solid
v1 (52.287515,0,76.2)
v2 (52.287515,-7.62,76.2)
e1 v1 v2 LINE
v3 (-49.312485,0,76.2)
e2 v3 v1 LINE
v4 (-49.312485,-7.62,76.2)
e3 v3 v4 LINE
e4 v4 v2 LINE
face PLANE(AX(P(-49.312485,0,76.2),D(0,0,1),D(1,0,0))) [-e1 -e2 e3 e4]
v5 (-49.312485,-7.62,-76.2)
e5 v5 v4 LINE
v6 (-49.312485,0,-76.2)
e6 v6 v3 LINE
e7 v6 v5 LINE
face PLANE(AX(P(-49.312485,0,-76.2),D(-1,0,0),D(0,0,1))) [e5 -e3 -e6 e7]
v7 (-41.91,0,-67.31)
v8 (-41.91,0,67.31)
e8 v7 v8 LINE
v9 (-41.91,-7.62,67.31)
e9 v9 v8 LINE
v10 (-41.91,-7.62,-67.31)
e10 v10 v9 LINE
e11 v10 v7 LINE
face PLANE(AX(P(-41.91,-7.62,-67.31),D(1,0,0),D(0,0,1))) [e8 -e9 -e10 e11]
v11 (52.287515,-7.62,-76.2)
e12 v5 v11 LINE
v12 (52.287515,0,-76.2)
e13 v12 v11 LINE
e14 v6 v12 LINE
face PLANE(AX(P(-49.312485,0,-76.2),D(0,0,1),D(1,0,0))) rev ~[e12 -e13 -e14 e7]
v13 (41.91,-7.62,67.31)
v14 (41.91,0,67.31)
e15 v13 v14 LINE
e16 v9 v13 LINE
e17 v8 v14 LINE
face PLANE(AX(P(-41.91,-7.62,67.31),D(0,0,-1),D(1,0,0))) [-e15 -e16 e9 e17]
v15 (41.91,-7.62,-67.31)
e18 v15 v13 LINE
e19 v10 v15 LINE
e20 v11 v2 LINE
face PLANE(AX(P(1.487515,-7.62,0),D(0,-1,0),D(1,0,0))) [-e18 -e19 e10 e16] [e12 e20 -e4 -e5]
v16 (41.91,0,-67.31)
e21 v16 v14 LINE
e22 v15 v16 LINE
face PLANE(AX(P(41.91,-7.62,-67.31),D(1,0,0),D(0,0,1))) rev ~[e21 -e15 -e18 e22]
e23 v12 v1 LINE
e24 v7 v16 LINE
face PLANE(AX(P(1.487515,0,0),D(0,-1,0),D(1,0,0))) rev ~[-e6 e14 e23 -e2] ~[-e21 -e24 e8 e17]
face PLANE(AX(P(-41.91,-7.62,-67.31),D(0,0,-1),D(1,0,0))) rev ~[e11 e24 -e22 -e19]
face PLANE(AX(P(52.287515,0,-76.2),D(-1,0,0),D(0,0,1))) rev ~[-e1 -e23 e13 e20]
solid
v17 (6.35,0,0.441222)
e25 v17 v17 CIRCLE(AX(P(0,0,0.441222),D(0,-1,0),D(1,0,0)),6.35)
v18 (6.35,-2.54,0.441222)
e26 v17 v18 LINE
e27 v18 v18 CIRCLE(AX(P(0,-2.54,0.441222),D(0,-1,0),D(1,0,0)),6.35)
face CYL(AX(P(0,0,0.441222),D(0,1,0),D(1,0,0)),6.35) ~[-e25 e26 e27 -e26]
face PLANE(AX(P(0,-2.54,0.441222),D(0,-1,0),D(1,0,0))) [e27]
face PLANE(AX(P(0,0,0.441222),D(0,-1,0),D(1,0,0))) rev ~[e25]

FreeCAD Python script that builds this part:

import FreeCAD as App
import Part
import Sketcher
Q = App.Units.Quantity

doc = App.newDocument("Part")
body = doc.addObject("PartDesign::Body", "Body")

# Sketch on XZ plane
sketch1 = doc.addObject("Sketcher::SketchObject", "Sketch")
body.addObject(sketch1)
sketch1.AttachmentSupport = (doc.XZ_Plane, [""])
sketch1.MapMode = "FlatFace"
sketch1.addGeometry(Part.LineSegment(App.Vector(-49, 76, 0), App.Vector(-49, -76, 0)), False)
sketch1.addGeometry(Part.LineSegment(App.Vector(-49, -76, 0), App.Vector(52, -76, 0)), False)
sketch1.addGeometry(Part.LineSegment(App.Vector(52, -76, 0), App.Vector(52, 76, 0)), False)
sketch1.addGeometry(Part.LineSegment(App.Vector(52, 76, 0), App.Vector(-49, 76, 0)), False)
sketch1.addConstraint(Sketcher.Constraint("Coincident", 0, 2, 1, 1))
sketch1.addConstraint(Sketcher.Constraint("Coincident", 1, 2, 2, 1))
sketch1.addConstraint(Sketcher.Constraint("Coincident", 2, 2, 3, 1))
sketch1.addConstraint(Sketcher.Constraint("Coincident", 3, 2, 0, 1))
sketch1.addConstraint(Sketcher.Constraint("Vertical", 0))
sketch1.addConstraint(Sketcher.Constraint("Horizontal", 1))
sketch1.addConstraint(Sketcher.Constraint("Vertical", 2))
sketch1.addConstraint(Sketcher.Constraint("Horizontal", 3))
sketch1.addConstraint(Sketcher.Constraint("DistanceX", 1, 1, 1, 2, Q("4 in")))
sketch1.addConstraint(Sketcher.Constraint("DistanceY", 0, 2, 0, 1, Q("6 in")))
sketch1.addConstraint(Sketcher.Constraint("DistanceY", 0, 2, -1, 1, Q("3 in")))
sketch1.addConstraint(Sketcher.Constraint("DistanceX", 0, 2, -1, 1, 49.312485))
pad1 = doc.addObject("PartDesign::Pad", "Pad")
body.addObject(pad1)
pad1.Profile = sketch1
pad1.Length = Q("0.3 in")

# Sketch on XZ plane
sketch2 = doc.addObject("Sketcher::SketchObject", "Sketch001")
body.addObject(sketch2)
sketch2.AttachmentSupport = (doc.XZ_Plane, [""])
sketch2.MapMode = "FlatFace"
sketch2.AttachmentOffset = App.Placement(App.Vector(0, 0, 0.3 * 25.4), App.Rotation())
sketch2.addGeometry(Part.LineSegment(App.Vector(-42, 67, 0), App.Vector(-42, -67, 0)), False)
sketch2.addGeometry(Part.LineSegment(App.Vector(-42, -67, 0), App.Vector(42, -67, 0)), False)
sketch2.addGeometry(Part.LineSegment(App.Vector(42, -67, 0), App.Vector(42, 67, 0)), False)
sketch2.addGeometry(Part.LineSegment(App.Vector(42, 67, 0), App.Vector(-42, 67, 0)), False)
sketch2.addConstraint(Sketcher.Constraint("Coincident", 0, 2, 1, 1))
sketch2.addConstraint(Sketcher.Constraint("Coincident", 1, 2, 2, 1))
sketch2.addConstraint(Sketcher.Constraint("Coincident", 2, 2, 3, 1))
sketch2.addConstraint(Sketcher.Constraint("Coincident", 3, 2, 0, 1))
sketch2.addConstraint(Sketcher.Constraint("Vertical", 0))
sketch2.addConstraint(Sketcher.Constraint("Horizontal", 1))
sketch2.addConstraint(Sketcher.Constraint("Vertical", 2))
sketch2.addConstraint(Sketcher.Constraint("Horizontal", 3))
sketch2.addConstraint(Sketcher.Constraint("Symmetric", 0, 2, 2, 2, -1, 1))
sketch2.addConstraint(Sketcher.Constraint("DistanceX", 1, 1, 1, 2, Q("3.3 in")))
sketch2.addConstraint(Sketcher.Constraint("DistanceY", 0, 2, 0, 1, Q("5.3 in")))
pocket1 = doc.addObject("PartDesign::Pocket", "Pocket")
body.addObject(pocket1)
pocket1.Profile = sketch2
pocket1.Length = Q("1 in")
body2 = doc.addObject("PartDesign::Body", "Body001")

# Sketch on XZ plane
sketch3 = doc.addObject("Sketcher::SketchObject", "Sketch002")
body2.addObject(sketch3)
sketch3.AttachmentSupport = (doc.getObject("XZ_Plane001"), [""])
sketch3.MapMode = "FlatFace"
sketch3.addGeometry(Part.Circle(App.Vector(0, 0, 0), App.Vector(0, 0, 1), 6), False)
sketch3.addConstraint(Sketcher.Constraint("PointOnObject", 0, 3, -2))
sketch3.addConstraint(Sketcher.Constraint("Diameter", 0, Q("0.5 in")))
sketch3.addConstraint(Sketcher.Constraint("DistanceY", -1, 1, 0, 3, 0.441222))
pad2 = doc.addObject("PartDesign::Pad", "Pad001")
body2.addObject(pad2)
pad2.Profile = sketch3
pad2.Length = Q("0.1 in")

doc.recompute()
